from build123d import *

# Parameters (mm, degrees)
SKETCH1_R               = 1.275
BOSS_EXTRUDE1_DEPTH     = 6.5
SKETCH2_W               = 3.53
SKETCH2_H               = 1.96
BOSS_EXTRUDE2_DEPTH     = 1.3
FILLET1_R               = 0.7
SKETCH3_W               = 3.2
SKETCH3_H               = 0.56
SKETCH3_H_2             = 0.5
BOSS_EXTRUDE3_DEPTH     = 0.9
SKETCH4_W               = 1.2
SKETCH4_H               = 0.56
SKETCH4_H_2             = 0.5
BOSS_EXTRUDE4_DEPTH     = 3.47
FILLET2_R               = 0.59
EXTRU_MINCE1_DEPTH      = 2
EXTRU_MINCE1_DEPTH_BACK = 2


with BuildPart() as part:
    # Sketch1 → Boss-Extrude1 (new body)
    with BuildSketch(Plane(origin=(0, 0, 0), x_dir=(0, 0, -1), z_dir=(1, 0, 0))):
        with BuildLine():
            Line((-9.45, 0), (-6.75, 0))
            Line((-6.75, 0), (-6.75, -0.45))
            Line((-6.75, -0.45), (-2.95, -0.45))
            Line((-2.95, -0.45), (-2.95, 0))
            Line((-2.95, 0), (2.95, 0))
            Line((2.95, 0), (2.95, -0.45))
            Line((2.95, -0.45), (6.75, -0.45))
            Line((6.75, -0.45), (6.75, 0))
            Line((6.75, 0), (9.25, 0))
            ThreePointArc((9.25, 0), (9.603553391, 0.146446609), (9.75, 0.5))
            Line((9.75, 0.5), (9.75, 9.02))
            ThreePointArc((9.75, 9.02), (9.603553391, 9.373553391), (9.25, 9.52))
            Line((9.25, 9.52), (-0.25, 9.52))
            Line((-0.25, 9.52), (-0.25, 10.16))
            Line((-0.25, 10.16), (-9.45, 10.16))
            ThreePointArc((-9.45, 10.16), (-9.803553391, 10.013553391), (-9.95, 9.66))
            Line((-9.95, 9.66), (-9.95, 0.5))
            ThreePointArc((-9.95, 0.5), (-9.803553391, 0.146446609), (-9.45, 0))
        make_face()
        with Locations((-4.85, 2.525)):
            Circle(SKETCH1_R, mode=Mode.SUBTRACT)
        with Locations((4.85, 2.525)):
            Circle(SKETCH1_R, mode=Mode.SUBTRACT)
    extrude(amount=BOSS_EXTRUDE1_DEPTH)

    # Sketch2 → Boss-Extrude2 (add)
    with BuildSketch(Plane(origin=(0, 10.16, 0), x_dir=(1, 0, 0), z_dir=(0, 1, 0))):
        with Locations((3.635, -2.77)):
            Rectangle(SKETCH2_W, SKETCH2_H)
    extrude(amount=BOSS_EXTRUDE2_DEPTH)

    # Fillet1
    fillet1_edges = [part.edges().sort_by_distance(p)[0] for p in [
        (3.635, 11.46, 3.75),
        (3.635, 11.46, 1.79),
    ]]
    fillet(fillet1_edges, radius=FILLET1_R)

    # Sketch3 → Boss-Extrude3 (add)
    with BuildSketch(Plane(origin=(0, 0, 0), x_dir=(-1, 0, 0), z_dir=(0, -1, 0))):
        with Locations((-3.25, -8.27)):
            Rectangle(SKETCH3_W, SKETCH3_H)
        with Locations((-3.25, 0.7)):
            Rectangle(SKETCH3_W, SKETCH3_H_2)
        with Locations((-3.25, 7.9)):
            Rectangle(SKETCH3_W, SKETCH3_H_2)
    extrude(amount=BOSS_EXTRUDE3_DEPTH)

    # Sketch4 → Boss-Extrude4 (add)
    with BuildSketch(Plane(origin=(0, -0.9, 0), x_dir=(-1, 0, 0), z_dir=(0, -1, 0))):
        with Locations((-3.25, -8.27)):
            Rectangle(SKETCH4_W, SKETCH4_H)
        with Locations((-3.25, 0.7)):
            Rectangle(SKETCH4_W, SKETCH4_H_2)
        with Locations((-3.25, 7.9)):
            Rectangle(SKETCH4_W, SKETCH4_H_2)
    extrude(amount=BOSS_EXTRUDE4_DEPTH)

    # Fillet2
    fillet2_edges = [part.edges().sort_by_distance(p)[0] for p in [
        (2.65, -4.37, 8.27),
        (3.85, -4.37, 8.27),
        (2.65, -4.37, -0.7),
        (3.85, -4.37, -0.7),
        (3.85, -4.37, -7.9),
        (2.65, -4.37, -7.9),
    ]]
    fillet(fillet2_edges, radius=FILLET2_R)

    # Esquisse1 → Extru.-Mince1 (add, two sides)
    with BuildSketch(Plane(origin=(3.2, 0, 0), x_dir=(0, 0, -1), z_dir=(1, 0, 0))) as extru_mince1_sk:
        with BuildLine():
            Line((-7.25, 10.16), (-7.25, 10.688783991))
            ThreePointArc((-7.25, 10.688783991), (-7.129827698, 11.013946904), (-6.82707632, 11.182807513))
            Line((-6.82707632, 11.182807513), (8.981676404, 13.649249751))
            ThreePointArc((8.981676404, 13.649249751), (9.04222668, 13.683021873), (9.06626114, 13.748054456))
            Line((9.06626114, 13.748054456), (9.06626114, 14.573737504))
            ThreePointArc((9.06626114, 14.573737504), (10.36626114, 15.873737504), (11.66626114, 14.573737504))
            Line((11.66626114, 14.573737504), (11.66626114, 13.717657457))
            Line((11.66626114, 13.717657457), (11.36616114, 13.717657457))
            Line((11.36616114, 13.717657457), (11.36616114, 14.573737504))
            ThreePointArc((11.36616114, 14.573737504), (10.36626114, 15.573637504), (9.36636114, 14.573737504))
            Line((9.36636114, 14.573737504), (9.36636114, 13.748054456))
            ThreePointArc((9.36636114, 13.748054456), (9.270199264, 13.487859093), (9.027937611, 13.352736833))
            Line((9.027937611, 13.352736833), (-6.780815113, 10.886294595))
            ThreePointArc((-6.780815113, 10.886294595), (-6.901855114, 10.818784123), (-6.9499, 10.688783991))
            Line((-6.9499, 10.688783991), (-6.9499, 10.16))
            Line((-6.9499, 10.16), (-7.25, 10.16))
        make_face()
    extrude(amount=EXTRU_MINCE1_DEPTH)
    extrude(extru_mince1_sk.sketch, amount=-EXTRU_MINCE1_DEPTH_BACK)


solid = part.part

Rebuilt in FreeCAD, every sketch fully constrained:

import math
import FreeCAD as App
import Part
import Sketcher
from FreeCAD import Vector
Q = App.Units.Quantity


def edges_at(feature, points):
    """Names of the edges that pass closest to the given points."""
    edges = feature.Shape.Edges
    near = lambda p: min(range(len(edges)), key=lambda i: edges[i].distToShape(Part.Vertex(*p))[0])
    return sorted({f"Edge{near(p) + 1}" for p in points})

doc = App.newDocument("Part")
params = doc.addObject("Spreadsheet::Sheet", "Params")
for row, (alias, value) in enumerate([
    ("sketch1_radius", "0.5 mm"),
    ("sketch1_diameter", "2.55 mm"),
    ("sketch1_height", "2.7 mm"),
    ("sketch1_height2", "3.8 mm"),
    ("sketch1_height3", "5.9 mm"),
    ("pad1_length", "6.5 mm"),
    ("sketch2_width", "3.53 mm"),
    ("sketch2_height", "1.96 mm"),
    ("pad2_length", "1.3 mm"),
    ("fillet_radius", "0.7 mm"),
    ("sketch3_width", "3.2 mm"),
    ("sketch3_height", "0.5 mm"),
    ("sketch3_height2", "0.56 mm"),
    ("pad3_length", "0.9 mm"),
    ("sketch4_width", "1.2 mm"),
    ("sketch4_height", "0.5 mm"),
    ("sketch4_height2", "0.56 mm"),
    ("pad4_length", "3.47 mm"),
    ("fillet2_radius", "0.59 mm"),
    ("sketch5_radius", "1.3 mm"),
    ("sketch5_radius2", "0.1 mm"),
    ("sketch5_radius3", "0.5 mm"),
    ("sketch5_length", "16 mm"),
    ("pad5_length", "2 mm"),
    ("pad5_length2", "2 mm"),
], start=1):
    params.set(f"A{row}", alias)
    params.set(f"B{row}", "=" + value)
    params.setAlias(f"B{row}", alias)

body = doc.addObject("PartDesign::Body", "Body")

# Sketch on YZ plane
sketch1 = body.newObject("Sketcher::SketchObject", "Sketch")
sketch1.AttachmentSupport = (doc.getObject("YZ_Plane"), [""])
sketch1.MapMode = "FlatFace"
sketch1.addGeometry([
    Part.LineSegment(Vector(0, 9.45, 0), Vector(0, 6.75, 0)),  # 0
    Part.LineSegment(Vector(0, 6.75, 0), Vector(-0.45, 6.75, 0)),  # 1
    Part.LineSegment(Vector(-0.45, 6.75, 0), Vector(-0.45, 2.95, 0)),  # 2
    Part.LineSegment(Vector(-0.45, 2.95, 0), Vector(0, 2.95, 0)),  # 3
    Part.LineSegment(Vector(0, 2.95, 0), Vector(0, -2.95, 0)),  # 4
    Part.LineSegment(Vector(0, -2.95, 0), Vector(-0.45, -2.95, 0)),  # 5
    Part.LineSegment(Vector(-0.45, -2.95, 0), Vector(-0.45, -6.75, 0)),  # 6
    Part.LineSegment(Vector(-0.45, -6.75, 0), Vector(0, -6.75, 0)),  # 7
    Part.LineSegment(Vector(0, -6.75, 0), Vector(0, -9.25, 0)),  # 8
    Part.ArcOfCircle(Part.Circle(Vector(0.5, -9.25, 0), Vector(0, 0, 1), 0.5), math.radians(180), math.radians(270)),  # 9
    Part.LineSegment(Vector(0.5, -9.75, 0), Vector(9.02, -9.75, 0)),  # 10
    Part.ArcOfCircle(Part.Circle(Vector(9.02, -9.25, 0), Vector(0, 0, 1), 0.5), math.radians(-90), math.radians(0)),  # 11
    Part.LineSegment(Vector(9.52, -9.25, 0), Vector(9.52, 0.25, 0)),  # 12
    Part.LineSegment(Vector(9.52, 0.25, 0), Vector(10.16, 0.25, 0)),  # 13
    Part.LineSegment(Vector(10.16, 0.25, 0), Vector(10.16, 9.45, 0)),  # 14
    Part.ArcOfCircle(Part.Circle(Vector(9.66, 9.45, 0), Vector(0, 0, 1), 0.5), math.radians(0), math.radians(90)),  # 15
    Part.LineSegment(Vector(9.66, 9.95, 0), Vector(0.5, 9.95, 0)),  # 16
    Part.ArcOfCircle(Part.Circle(Vector(0.5, 9.45, 0), Vector(0, 0, 1), 0.5), math.radians(90), math.radians(180)),  # 17
    Part.Circle(Vector(2.52, 4.85, 0), Vector(0, 0, 1), 1.27),  # 18
    Part.Circle(Vector(2.52, -4.85, 0), Vector(0, 0, 1), 1.27),  # 19
], False)
sketch1.addConstraint([
    Sketcher.Constraint("Coincident", 0, 2, 1, 1),
    Sketcher.Constraint("Coincident", 1, 2, 2, 1),
    Sketcher.Constraint("Coincident", 2, 2, 3, 1),
    Sketcher.Constraint("Coincident", 3, 2, 4, 1),
    Sketcher.Constraint("Coincident", 4, 2, 5, 1),
    Sketcher.Constraint("Coincident", 5, 2, 6, 1),
    Sketcher.Constraint("Coincident", 6, 2, 7, 1),
    Sketcher.Constraint("Coincident", 7, 2, 8, 1),
    Sketcher.Constraint("Tangent", 8, 2, 9, 1),
    Sketcher.Constraint("Tangent", 9, 2, 10, 1),
    Sketcher.Constraint("Tangent", 10, 2, 11, 1),
    Sketcher.Constraint("Tangent", 11, 2, 12, 1),
    Sketcher.Constraint("Coincident", 12, 2, 13, 1),
    Sketcher.Constraint("Coincident", 13, 2, 14, 1),
    Sketcher.Constraint("Tangent", 14, 2, 15, 1),
    Sketcher.Constraint("Tangent", 15, 2, 16, 1),
    Sketcher.Constraint("Tangent", 16, 2, 17, 1),
    Sketcher.Constraint("Tangent", 17, 2, 0, 1),
    Sketcher.Constraint("Vertical", 0),
    Sketcher.Constraint("Horizontal", 1),
    Sketcher.Constraint("Vertical", 2),
    Sketcher.Constraint("Horizontal", 3),
    Sketcher.Constraint("Vertical", 4),
    Sketcher.Constraint("Horizontal", 5),
    Sketcher.Constraint("Vertical", 6),
    Sketcher.Constraint("Horizontal", 7),
    Sketcher.Constraint("Vertical", 8),
    Sketcher.Constraint("Horizontal", 10),
    Sketcher.Constraint("Vertical", 12),
    Sketcher.Constraint("Horizontal", 13),
    Sketcher.Constraint("Vertical", 14),
    Sketcher.Constraint("Horizontal", 16),
    Sketcher.Constraint("Equal", 9, 11),
    Sketcher.Constraint("Equal", 11, 15),
    Sketcher.Constraint("Equal", 15, 17),
    Sketcher.Constraint("Equal", 18, 19),
    Sketcher.Constraint("Symmetric", 3, 2, 4, 2, -1, 1),
    Sketcher.Constraint("Symmetric", 0, 2, 7, 2, -1, 1),
    Sketcher.Constraint("Symmetric", 18, 3, 19, 3, -1),
    Sketcher.Constraint("PointOnObject", 0, 2, -2),
    Sketcher.Constraint("Vertical", 2, 2, 5, 2),
    Sketcher.Constraint("Radius", 9, Q("0.5 mm")),
    Sketcher.Constraint("Diameter", 18, Q("2.55 mm")),
    Sketcher.Constraint("DistanceY", 0, 2, 0, 1, Q("2.7 mm")),
    Sketcher.Constraint("DistanceY", 2, 2, 2, 1, Q("3.8 mm")),
    Sketcher.Constraint("DistanceY", 4, 2, 4, 1, Q("5.9 mm")),
    Sketcher.Constraint("DistanceY", 8, 2, 8, 1, Q("2.5 mm")),
    Sketcher.Constraint("DistanceY", 12, 1, 12, 2, Q("9.5 mm")),
    Sketcher.Constraint("DistanceX", 1, 2, 1, 1, Q("0.45 mm")),
    Sketcher.Constraint("DistanceX", 10, 1, 10, 2, Q("8.52 mm")),
    Sketcher.Constraint("DistanceX", 13, 1, 13, 2, Q("0.64 mm")),
    Sketcher.Constraint("DistanceY", 18, 3, 17, 3, Q("4.6 mm")),
    Sketcher.Constraint("DistanceX", -1, 1, 18, 3, Q("2.525 mm")),
])
sketch1.setExpression("Constraints[41]", "Params.sketch1_radius")
sketch1.setExpression("Constraints[42]", "Params.sketch1_diameter")
sketch1.setExpression("Constraints[43]", "Params.sketch1_height")
sketch1.setExpression("Constraints[44]", "Params.sketch1_height2")
sketch1.setExpression("Constraints[45]", "Params.sketch1_height3")
pad1 = body.newObject("PartDesign::Pad", "Pad")
pad1.Profile = sketch1
pad1.setExpression("Length", "Params.pad1_length")

# Sketch on XZ plane
sketch2 = body.newObject("Sketcher::SketchObject", "Sketch001")
sketch2.AttachmentSupport = (doc.getObject("XZ_Plane"), [""])
sketch2.MapMode = "FlatFace"
sketch2.AttachmentOffset = App.Placement(Vector(0, 0, -10.16), App.Rotation())
sketch2.addGeometry([
    Part.LineSegment(Vector(1.9, 1.8, 0), Vector(1.9, 3.8, 0)),
    Part.LineSegment(Vector(1.9, 3.8, 0), Vector(5.4, 3.8, 0)),
    Part.LineSegment(Vector(5.4, 3.8, 0), Vector(5.4, 1.8, 0)),
    Part.LineSegment(Vector(5.4, 1.8, 0), Vector(1.9, 1.8, 0)),
], False)
sketch2.addConstraint([
    Sketcher.Constraint("Coincident", 0, 2, 1, 1),
    Sketcher.Constraint("Coincident", 1, 2, 2, 1),
    Sketcher.Constraint("Coincident", 2, 2, 3, 1),
    Sketcher.Constraint("Coincident", 3, 2, 0, 1),
    Sketcher.Constraint("Vertical", 0),
    Sketcher.Constraint("Horizontal", 1),
    Sketcher.Constraint("Vertical", 2),
    Sketcher.Constraint("Horizontal", 3),
    Sketcher.Constraint("DistanceX", 1, 1, 1, 2, Q("3.53 mm")),
    Sketcher.Constraint("DistanceY", 0, 1, 0, 2, Q("1.96 mm")),
    Sketcher.Constraint("DistanceX", -1, 1, 1, 2, Q("5.4 mm")),
    Sketcher.Constraint("DistanceY", -1, 1, 0, 2, Q("3.75 mm")),
])
sketch2.setExpression("Constraints[8]", "Params.sketch2_width")
sketch2.setExpression("Constraints[9]", "Params.sketch2_height")
pad2 = body.newObject("PartDesign::Pad", "Pad001")
pad2.Profile = sketch2
pad2.setExpression("Length", "Params.pad2_length")
pad2.Reversed = True
doc.recompute()

fillet = body.newObject("PartDesign::Fillet", "Fillet")
fillet.Base = (pad2, edges_at(pad2, [(3.635, 11.46, 3.75), (3.635, 11.46, 1.79)]))
fillet.setExpression("Radius", "Params.fillet_radius")

# Sketch on XZ plane
sketch3 = body.newObject("Sketcher::SketchObject", "Sketch002")
sketch3.AttachmentSupport = (doc.getObject("XZ_Plane"), [""])
sketch3.MapMode = "FlatFace"
sketch3.addGeometry([
    Part.LineSegment(Vector(4.85, 7.99, 0), Vector(4.85, 8.55, 0)),  # 0
    Part.LineSegment(Vector(4.85, 8.55, 0), Vector(1.65, 8.55, 0)),  # 1
    Part.LineSegment(Vector(1.65, 8.55, 0), Vector(1.65, 7.99, 0)),  # 2
    Part.LineSegment(Vector(1.65, 7.99, 0), Vector(4.85, 7.99, 0)),  # 3
    Part.LineSegment(Vector(4.85, -0.95, 0), Vector(4.85, -0.45, 0)),  # 4
    Part.LineSegment(Vector(4.85, -0.45, 0), Vector(1.65, -0.45, 0)),  # 5
    Part.LineSegment(Vector(1.65, -0.45, 0), Vector(1.65, -0.95, 0)),  # 6
    Part.LineSegment(Vector(1.65, -0.95, 0), Vector(4.85, -0.95, 0)),  # 7
    Part.LineSegment(Vector(4.85, -8.15, 0), Vector(4.85, -7.65, 0)),  # 8
    Part.LineSegment(Vector(4.85, -7.65, 0), Vector(1.65, -7.65, 0)),  # 9
    Part.LineSegment(Vector(1.65, -7.65, 0), Vector(1.65, -8.15, 0)),  # 10
    Part.LineSegment(Vector(1.65, -8.15, 0), Vector(4.85, -8.15, 0)),  # 11
], False)
sketch3.addConstraint([
    Sketcher.Constraint("Coincident", 0, 2, 1, 1),
    Sketcher.Constraint("Coincident", 1, 2, 2, 1),
    Sketcher.Constraint("Coincident", 2, 2, 3, 1),
    Sketcher.Constraint("Coincident", 3, 2, 0, 1),
    Sketcher.Constraint("Coincident", 4, 2, 5, 1),
    Sketcher.Constraint("Coincident", 5, 2, 6, 1),
    Sketcher.Constraint("Coincident", 6, 2, 7, 1),
    Sketcher.Constraint("Coincident", 7, 2, 4, 1),
    Sketcher.Constraint("Coincident", 8, 2, 9, 1),
    Sketcher.Constraint("Coincident", 9, 2, 10, 1),
    Sketcher.Constraint("Coincident", 10, 2, 11, 1),
    Sketcher.Constraint("Coincident", 11, 2, 8, 1),
    Sketcher.Constraint("Vertical", 0),
    Sketcher.Constraint("Horizontal", 1),
    Sketcher.Constraint("Vertical", 2),
    Sketcher.Constraint("Horizontal", 3),
    Sketcher.Constraint("Vertical", 4),
    Sketcher.Constraint("Horizontal", 5),
    Sketcher.Constraint("Vertical", 6),
    Sketcher.Constraint("Horizontal", 7),
    Sketcher.Constraint("Vertical", 8),
    Sketcher.Constraint("Horizontal", 9),
    Sketcher.Constraint("Vertical", 10),
    Sketcher.Constraint("Horizontal", 11),
    Sketcher.Constraint("Vertical", 3, 2, 4, 2),
    Sketcher.Constraint("Vertical", 2, 2, 5, 2),
    Sketcher.Constraint("Vertical", 7, 2, 8, 2),
    Sketcher.Constraint("Vertical", 6, 2, 9, 2),
    Sketcher.Constraint("Equal", 6, 8),
    Sketcher.Constraint("DistanceX", 1, 2, 1, 1, Q("3.2 mm")),
    Sketcher.Constraint("DistanceY", 4, 1, 4, 2, Q("0.5 mm")),
    Sketcher.Constraint("DistanceY", 4, 2, 0, 2, Q("9 mm")),
    Sketcher.Constraint("DistanceY", 0, 1, 0, 2, Q("0.56 mm")),
    Sketcher.Constraint("DistanceY", 8, 2, 7, 2, Q("6.7 mm")),
    Sketcher.Constraint("DistanceX", -1, 1, 0, 2, Q("4.85 mm")),
    Sketcher.Constraint("DistanceY", -1, 1, 0, 2, Q("8.55 mm")),
])
sketch3.setExpression("Constraints[29]", "Params.sketch3_width")
sketch3.setExpression("Constraints[30]", "Params.sketch3_height")
sketch3.setExpression("Constraints[32]", "Params.sketch3_height2")
pad3 = body.newObject("PartDesign::Pad", "Pad002")
pad3.Profile = sketch3
pad3.setExpression("Length", "Params.pad3_length")

# Sketch on XZ plane
sketch4 = body.newObject("Sketcher::SketchObject", "Sketch003")
sketch4.AttachmentSupport = (doc.getObject("XZ_Plane"), [""])
sketch4.MapMode = "FlatFace"
sketch4.AttachmentOffset = App.Placement(Vector(0, 0, 0.9), App.Rotation())
sketch4.addGeometry([
    Part.LineSegment(Vector(3.85, 7.99, 0), Vector(3.85, 8.55, 0)),  # 0
    Part.LineSegment(Vector(3.85, 8.55, 0), Vector(2.65, 8.55, 0)),  # 1
    Part.LineSegment(Vector(2.65, 8.55, 0), Vector(2.65, 7.99, 0)),  # 2
    Part.LineSegment(Vector(2.65, 7.99, 0), Vector(3.85, 7.99, 0)),  # 3
    Part.LineSegment(Vector(3.85, -0.95, 0), Vector(3.85, -0.45, 0)),  # 4
    Part.LineSegment(Vector(3.85, -0.45, 0), Vector(2.65, -0.45, 0)),  # 5
    Part.LineSegment(Vector(2.65, -0.45, 0), Vector(2.65, -0.95, 0)),  # 6
    Part.LineSegment(Vector(2.65, -0.95, 0), Vector(3.85, -0.95, 0)),  # 7
    Part.LineSegment(Vector(3.85, -8.15, 0), Vector(3.85, -7.65, 0)),  # 8
    Part.LineSegment(Vector(3.85, -7.65, 0), Vector(2.65, -7.65, 0)),  # 9
    Part.LineSegment(Vector(2.65, -7.65, 0), Vector(2.65, -8.15, 0)),  # 10
    Part.LineSegment(Vector(2.65, -8.15, 0), Vector(3.85, -8.15, 0)),  # 11
], False)
sketch4.addConstraint([
    Sketcher.Constraint("Coincident", 0, 2, 1, 1),
    Sketcher.Constraint("Coincident", 1, 2, 2, 1),
    Sketcher.Constraint("Coincident", 2, 2, 3, 1),
    Sketcher.Constraint("Coincident", 3, 2, 0, 1),
    Sketcher.Constraint("Coincident", 4, 2, 5, 1),
    Sketcher.Constraint("Coincident", 5, 2, 6, 1),
    Sketcher.Constraint("Coincident", 6, 2, 7, 1),
    Sketcher.Constraint("Coincident", 7, 2, 4, 1),
    Sketcher.Constraint("Coincident", 8, 2, 9, 1),
    Sketcher.Constraint("Coincident", 9, 2, 10, 1),
    Sketcher.Constraint("Coincident", 10, 2, 11, 1),
    Sketcher.Constraint("Coincident", 11, 2, 8, 1),
    Sketcher.Constraint("Vertical", 0),
    Sketcher.Constraint("Horizontal", 1),
    Sketcher.Constraint("Vertical", 2),
    Sketcher.Constraint("Horizontal", 3),
    Sketcher.Constraint("Vertical", 4),
    Sketcher.Constraint("Horizontal", 5),
    Sketcher.Constraint("Vertical", 6),
    Sketcher.Constraint("Horizontal", 7),
    Sketcher.Constraint("Vertical", 8),
    Sketcher.Constraint("Horizontal", 9),
    Sketcher.Constraint("Vertical", 10),
    Sketcher.Constraint("Horizontal", 11),
    Sketcher.Constraint("Vertical", 3, 2, 4, 2),
    Sketcher.Constraint("Vertical", 2, 2, 5, 2),
    Sketcher.Constraint("Vertical", 7, 2, 8, 2),
    Sketcher.Constraint("Vertical", 6, 2, 9, 2),
    Sketcher.Constraint("Equal", 6, 8),
    Sketcher.Constraint("DistanceX", 1, 2, 1, 1, Q("1.2 mm")),
    Sketcher.Constraint("DistanceY", 4, 1, 4, 2, Q("0.5 mm")),
    Sketcher.Constraint("DistanceY", 4, 2, 0, 2, Q("9 mm")),
    Sketcher.Constraint("DistanceY", 0, 1, 0, 2, Q("0.56 mm")),
    Sketcher.Constraint("DistanceY", 8, 2, 7, 2, Q("6.7 mm")),
    Sketcher.Constraint("DistanceX", -1, 1, 0, 2, Q("3.85 mm")),
    Sketcher.Constraint("DistanceY", -1, 1, 0, 2, Q("8.55 mm")),
])
sketch4.setExpression("Constraints[29]", "Params.sketch4_width")
sketch4.setExpression("Constraints[30]", "Params.sketch4_height")
sketch4.setExpression("Constraints[32]", "Params.sketch4_height2")
pad4 = body.newObject("PartDesign::Pad", "Pad003")
pad4.Profile = sketch4
pad4.setExpression("Length", "Params.pad4_length")
doc.recompute()

fillet2 = body.newObject("PartDesign::Fillet", "Fillet001")
fillet2.Base = (pad4, edges_at(pad4, [
    (2.65, -4.37, 8.27),
    (3.85, -4.37, 8.27),
    (2.65, -4.37, -0.7),
    (3.85, -4.37, -0.7),
    (3.85, -4.37, -7.9),
    (2.65, -4.37, -7.9),
]))
fillet2.setExpression("Radius", "Params.fillet2_radius")

# Sketch on YZ plane
sketch5 = body.newObject("Sketcher::SketchObject", "Sketch004")
sketch5.AttachmentSupport = (doc.getObject("YZ_Plane"), [""])
sketch5.MapMode = "FlatFace"
sketch5.AttachmentOffset = App.Placement(Vector(0, 0, 3.2), App.Rotation())
sketch5.addGeometry([
    Part.LineSegment(Vector(10.69, 7.25, 0), Vector(10.16, 7.25, 0)),  # 0
    Part.LineSegment(Vector(10.16, 7.25, 0), Vector(10.16, 6.95, 0)),  # 1
    Part.LineSegment(Vector(10.16, 6.95, 0), Vector(10.69, 6.95, 0)),  # 2
    Part.ArcOfCircle(Part.Circle(Vector(10.69, 6.75, 0), Vector(0, 0, 1), 0.2), math.radians(9), math.radians(90)),  # 3
    Part.LineSegment(Vector(10.89, 6.78, 0), Vector(13.35, -9.03, 0)),  # 4
    Part.ArcOfCircle(Part.Circle(Vector(13.75, -8.97, 0), Vector(0, 0, 1), 0.4), math.radians(-171), math.radians(-90)),  # 5
    Part.LineSegment(Vector(13.75, -9.37, 0), Vector(14.57, -9.37, 0)),  # 6
    Part.ArcOfCircle(Part.Circle(Vector(14.57, -10.37, 0), Vector(0, 0, 1), 1), math.radians(-90), math.radians(90)),  # 7
    Part.LineSegment(Vector(14.57, -11.37, 0), Vector(13.72, -11.37, 0)),  # 8
    Part.LineSegment(Vector(13.72, -11.37, 0), Vector(13.72, -11.67, 0)),  # 9
    Part.LineSegment(Vector(13.72, -11.67, 0), Vector(14.57, -11.67, 0)),  # 10
    Part.ArcOfCircle(Part.Circle(Vector(14.57, -10.37, 0), Vector(0, 0, 1), 1.3), math.radians(-90), math.radians(90)),  # 11
    Part.LineSegment(Vector(14.57, -9.07, 0), Vector(13.75, -9.07, 0)),  # 12
    Part.ArcOfCircle(Part.Circle(Vector(13.75, -8.97, 0), Vector(0, 0, 1), 0.1), math.radians(-171), math.radians(-90)),  # 13
    Part.LineSegment(Vector(13.65, -8.98, 0), Vector(11.18, 6.83, 0)),  # 14
    Part.ArcOfCircle(Part.Circle(Vector(10.69, 6.75, 0), Vector(0, 0, 1), 0.5), math.radians(9), math.radians(90)),  # 15
], False)
sketch5.addConstraint([
    Sketcher.Constraint("Coincident", 0, 2, 1, 1),
    Sketcher.Constraint("Coincident", 1, 2, 2, 1),
    Sketcher.Constraint("Tangent", 2, 2, 3, 2),
    Sketcher.Constraint("Tangent", 3, 1, 4, 1),
    Sketcher.Constraint("Tangent", 4, 2, 5, 1),
    Sketcher.Constraint("Tangent", 5, 2, 6, 1),
    Sketcher.Constraint("Tangent", 6, 2, 7, 2),
    Sketcher.Constraint("Tangent", 7, 1, 8, 1),
    Sketcher.Constraint("Coincident", 8, 2, 9, 1),
    Sketcher.Constraint("Coincident", 9, 2, 10, 1),
    Sketcher.Constraint("Tangent", 10, 2, 11, 1),
    Sketcher.Constraint("Tangent", 11, 2, 12, 1),
    Sketcher.Constraint("Tangent", 12, 2, 13, 2),
    Sketcher.Constraint("Tangent", 13, 1, 14, 1),
    Sketcher.Constraint("Tangent", 14, 2, 15, 1),
    Sketcher.Constraint("Tangent", 15, 2, 0, 1),
    Sketcher.Constraint("Horizontal", 0),
    Sketcher.Constraint("Vertical", 1),
    Sketcher.Constraint("Horizontal", 2),
    Sketcher.Constraint("Horizontal", 6),
    Sketcher.Constraint("Horizontal", 8),
    Sketcher.Constraint("Vertical", 9),
    Sketcher.Constraint("Horizontal", 10),
    Sketcher.Constraint("Horizontal", 12),
    Sketcher.Constraint("Coincident", 11, 3, 7, 3),
    Sketcher.Constraint("Coincident", 13, 3, 5, 3),
    Sketcher.Constraint("Coincident", 15, 3, 3, 3),
    Sketcher.Constraint("Parallel", 4, 14),
    Sketcher.Constraint("Radius", 11, Q("1.3 mm")),
    Sketcher.Constraint("Radius", 13, Q("0.1 mm")),
    Sketcher.Constraint("Radius", 15, Q("0.5 mm")),
    Sketcher.Constraint("Distance", 4, Q("16 mm")),
    Sketcher.Constraint("Radius", 3, Q("0.1999 mm")),
    Sketcher.Constraint("DistanceY", -1, 1, 3, 3, Q("6.75 mm")),
    Sketcher.Constraint("DistanceX", -1, 1, 0, 2, Q("10.16 mm")),
    Sketcher.Constraint("DistanceX", 4, 2, 7, 3, Q("1.221001 mm")),
    Sketcher.Constraint("DistanceX", 8, 2, 8, 1, Q("0.85608 mm")),
    Sketcher.Constraint("DistanceX", 0, 2, 0, 1, Q("0.528784 mm")),
    Sketcher.Constraint("DistanceY", 5, 3, -1, 1, Q("8.966261 mm")),
])
sketch5.setExpression("Constraints[28]", "Params.sketch5_radius")
sketch5.setExpression("Constraints[29]", "Params.sketch5_radius2")
sketch5.setExpression("Constraints[30]", "Params.sketch5_radius3")
sketch5.setExpression("Constraints[31]", "Params.sketch5_length")
pad5 = body.newObject("PartDesign::Pad", "Pad004")
pad5.Profile = sketch5
pad5.Type = "TwoLengths"
pad5.setExpression("Length", "Params.pad5_length")
pad5.setExpression("Length2", "Params.pad5_length2")

doc.recompute()
